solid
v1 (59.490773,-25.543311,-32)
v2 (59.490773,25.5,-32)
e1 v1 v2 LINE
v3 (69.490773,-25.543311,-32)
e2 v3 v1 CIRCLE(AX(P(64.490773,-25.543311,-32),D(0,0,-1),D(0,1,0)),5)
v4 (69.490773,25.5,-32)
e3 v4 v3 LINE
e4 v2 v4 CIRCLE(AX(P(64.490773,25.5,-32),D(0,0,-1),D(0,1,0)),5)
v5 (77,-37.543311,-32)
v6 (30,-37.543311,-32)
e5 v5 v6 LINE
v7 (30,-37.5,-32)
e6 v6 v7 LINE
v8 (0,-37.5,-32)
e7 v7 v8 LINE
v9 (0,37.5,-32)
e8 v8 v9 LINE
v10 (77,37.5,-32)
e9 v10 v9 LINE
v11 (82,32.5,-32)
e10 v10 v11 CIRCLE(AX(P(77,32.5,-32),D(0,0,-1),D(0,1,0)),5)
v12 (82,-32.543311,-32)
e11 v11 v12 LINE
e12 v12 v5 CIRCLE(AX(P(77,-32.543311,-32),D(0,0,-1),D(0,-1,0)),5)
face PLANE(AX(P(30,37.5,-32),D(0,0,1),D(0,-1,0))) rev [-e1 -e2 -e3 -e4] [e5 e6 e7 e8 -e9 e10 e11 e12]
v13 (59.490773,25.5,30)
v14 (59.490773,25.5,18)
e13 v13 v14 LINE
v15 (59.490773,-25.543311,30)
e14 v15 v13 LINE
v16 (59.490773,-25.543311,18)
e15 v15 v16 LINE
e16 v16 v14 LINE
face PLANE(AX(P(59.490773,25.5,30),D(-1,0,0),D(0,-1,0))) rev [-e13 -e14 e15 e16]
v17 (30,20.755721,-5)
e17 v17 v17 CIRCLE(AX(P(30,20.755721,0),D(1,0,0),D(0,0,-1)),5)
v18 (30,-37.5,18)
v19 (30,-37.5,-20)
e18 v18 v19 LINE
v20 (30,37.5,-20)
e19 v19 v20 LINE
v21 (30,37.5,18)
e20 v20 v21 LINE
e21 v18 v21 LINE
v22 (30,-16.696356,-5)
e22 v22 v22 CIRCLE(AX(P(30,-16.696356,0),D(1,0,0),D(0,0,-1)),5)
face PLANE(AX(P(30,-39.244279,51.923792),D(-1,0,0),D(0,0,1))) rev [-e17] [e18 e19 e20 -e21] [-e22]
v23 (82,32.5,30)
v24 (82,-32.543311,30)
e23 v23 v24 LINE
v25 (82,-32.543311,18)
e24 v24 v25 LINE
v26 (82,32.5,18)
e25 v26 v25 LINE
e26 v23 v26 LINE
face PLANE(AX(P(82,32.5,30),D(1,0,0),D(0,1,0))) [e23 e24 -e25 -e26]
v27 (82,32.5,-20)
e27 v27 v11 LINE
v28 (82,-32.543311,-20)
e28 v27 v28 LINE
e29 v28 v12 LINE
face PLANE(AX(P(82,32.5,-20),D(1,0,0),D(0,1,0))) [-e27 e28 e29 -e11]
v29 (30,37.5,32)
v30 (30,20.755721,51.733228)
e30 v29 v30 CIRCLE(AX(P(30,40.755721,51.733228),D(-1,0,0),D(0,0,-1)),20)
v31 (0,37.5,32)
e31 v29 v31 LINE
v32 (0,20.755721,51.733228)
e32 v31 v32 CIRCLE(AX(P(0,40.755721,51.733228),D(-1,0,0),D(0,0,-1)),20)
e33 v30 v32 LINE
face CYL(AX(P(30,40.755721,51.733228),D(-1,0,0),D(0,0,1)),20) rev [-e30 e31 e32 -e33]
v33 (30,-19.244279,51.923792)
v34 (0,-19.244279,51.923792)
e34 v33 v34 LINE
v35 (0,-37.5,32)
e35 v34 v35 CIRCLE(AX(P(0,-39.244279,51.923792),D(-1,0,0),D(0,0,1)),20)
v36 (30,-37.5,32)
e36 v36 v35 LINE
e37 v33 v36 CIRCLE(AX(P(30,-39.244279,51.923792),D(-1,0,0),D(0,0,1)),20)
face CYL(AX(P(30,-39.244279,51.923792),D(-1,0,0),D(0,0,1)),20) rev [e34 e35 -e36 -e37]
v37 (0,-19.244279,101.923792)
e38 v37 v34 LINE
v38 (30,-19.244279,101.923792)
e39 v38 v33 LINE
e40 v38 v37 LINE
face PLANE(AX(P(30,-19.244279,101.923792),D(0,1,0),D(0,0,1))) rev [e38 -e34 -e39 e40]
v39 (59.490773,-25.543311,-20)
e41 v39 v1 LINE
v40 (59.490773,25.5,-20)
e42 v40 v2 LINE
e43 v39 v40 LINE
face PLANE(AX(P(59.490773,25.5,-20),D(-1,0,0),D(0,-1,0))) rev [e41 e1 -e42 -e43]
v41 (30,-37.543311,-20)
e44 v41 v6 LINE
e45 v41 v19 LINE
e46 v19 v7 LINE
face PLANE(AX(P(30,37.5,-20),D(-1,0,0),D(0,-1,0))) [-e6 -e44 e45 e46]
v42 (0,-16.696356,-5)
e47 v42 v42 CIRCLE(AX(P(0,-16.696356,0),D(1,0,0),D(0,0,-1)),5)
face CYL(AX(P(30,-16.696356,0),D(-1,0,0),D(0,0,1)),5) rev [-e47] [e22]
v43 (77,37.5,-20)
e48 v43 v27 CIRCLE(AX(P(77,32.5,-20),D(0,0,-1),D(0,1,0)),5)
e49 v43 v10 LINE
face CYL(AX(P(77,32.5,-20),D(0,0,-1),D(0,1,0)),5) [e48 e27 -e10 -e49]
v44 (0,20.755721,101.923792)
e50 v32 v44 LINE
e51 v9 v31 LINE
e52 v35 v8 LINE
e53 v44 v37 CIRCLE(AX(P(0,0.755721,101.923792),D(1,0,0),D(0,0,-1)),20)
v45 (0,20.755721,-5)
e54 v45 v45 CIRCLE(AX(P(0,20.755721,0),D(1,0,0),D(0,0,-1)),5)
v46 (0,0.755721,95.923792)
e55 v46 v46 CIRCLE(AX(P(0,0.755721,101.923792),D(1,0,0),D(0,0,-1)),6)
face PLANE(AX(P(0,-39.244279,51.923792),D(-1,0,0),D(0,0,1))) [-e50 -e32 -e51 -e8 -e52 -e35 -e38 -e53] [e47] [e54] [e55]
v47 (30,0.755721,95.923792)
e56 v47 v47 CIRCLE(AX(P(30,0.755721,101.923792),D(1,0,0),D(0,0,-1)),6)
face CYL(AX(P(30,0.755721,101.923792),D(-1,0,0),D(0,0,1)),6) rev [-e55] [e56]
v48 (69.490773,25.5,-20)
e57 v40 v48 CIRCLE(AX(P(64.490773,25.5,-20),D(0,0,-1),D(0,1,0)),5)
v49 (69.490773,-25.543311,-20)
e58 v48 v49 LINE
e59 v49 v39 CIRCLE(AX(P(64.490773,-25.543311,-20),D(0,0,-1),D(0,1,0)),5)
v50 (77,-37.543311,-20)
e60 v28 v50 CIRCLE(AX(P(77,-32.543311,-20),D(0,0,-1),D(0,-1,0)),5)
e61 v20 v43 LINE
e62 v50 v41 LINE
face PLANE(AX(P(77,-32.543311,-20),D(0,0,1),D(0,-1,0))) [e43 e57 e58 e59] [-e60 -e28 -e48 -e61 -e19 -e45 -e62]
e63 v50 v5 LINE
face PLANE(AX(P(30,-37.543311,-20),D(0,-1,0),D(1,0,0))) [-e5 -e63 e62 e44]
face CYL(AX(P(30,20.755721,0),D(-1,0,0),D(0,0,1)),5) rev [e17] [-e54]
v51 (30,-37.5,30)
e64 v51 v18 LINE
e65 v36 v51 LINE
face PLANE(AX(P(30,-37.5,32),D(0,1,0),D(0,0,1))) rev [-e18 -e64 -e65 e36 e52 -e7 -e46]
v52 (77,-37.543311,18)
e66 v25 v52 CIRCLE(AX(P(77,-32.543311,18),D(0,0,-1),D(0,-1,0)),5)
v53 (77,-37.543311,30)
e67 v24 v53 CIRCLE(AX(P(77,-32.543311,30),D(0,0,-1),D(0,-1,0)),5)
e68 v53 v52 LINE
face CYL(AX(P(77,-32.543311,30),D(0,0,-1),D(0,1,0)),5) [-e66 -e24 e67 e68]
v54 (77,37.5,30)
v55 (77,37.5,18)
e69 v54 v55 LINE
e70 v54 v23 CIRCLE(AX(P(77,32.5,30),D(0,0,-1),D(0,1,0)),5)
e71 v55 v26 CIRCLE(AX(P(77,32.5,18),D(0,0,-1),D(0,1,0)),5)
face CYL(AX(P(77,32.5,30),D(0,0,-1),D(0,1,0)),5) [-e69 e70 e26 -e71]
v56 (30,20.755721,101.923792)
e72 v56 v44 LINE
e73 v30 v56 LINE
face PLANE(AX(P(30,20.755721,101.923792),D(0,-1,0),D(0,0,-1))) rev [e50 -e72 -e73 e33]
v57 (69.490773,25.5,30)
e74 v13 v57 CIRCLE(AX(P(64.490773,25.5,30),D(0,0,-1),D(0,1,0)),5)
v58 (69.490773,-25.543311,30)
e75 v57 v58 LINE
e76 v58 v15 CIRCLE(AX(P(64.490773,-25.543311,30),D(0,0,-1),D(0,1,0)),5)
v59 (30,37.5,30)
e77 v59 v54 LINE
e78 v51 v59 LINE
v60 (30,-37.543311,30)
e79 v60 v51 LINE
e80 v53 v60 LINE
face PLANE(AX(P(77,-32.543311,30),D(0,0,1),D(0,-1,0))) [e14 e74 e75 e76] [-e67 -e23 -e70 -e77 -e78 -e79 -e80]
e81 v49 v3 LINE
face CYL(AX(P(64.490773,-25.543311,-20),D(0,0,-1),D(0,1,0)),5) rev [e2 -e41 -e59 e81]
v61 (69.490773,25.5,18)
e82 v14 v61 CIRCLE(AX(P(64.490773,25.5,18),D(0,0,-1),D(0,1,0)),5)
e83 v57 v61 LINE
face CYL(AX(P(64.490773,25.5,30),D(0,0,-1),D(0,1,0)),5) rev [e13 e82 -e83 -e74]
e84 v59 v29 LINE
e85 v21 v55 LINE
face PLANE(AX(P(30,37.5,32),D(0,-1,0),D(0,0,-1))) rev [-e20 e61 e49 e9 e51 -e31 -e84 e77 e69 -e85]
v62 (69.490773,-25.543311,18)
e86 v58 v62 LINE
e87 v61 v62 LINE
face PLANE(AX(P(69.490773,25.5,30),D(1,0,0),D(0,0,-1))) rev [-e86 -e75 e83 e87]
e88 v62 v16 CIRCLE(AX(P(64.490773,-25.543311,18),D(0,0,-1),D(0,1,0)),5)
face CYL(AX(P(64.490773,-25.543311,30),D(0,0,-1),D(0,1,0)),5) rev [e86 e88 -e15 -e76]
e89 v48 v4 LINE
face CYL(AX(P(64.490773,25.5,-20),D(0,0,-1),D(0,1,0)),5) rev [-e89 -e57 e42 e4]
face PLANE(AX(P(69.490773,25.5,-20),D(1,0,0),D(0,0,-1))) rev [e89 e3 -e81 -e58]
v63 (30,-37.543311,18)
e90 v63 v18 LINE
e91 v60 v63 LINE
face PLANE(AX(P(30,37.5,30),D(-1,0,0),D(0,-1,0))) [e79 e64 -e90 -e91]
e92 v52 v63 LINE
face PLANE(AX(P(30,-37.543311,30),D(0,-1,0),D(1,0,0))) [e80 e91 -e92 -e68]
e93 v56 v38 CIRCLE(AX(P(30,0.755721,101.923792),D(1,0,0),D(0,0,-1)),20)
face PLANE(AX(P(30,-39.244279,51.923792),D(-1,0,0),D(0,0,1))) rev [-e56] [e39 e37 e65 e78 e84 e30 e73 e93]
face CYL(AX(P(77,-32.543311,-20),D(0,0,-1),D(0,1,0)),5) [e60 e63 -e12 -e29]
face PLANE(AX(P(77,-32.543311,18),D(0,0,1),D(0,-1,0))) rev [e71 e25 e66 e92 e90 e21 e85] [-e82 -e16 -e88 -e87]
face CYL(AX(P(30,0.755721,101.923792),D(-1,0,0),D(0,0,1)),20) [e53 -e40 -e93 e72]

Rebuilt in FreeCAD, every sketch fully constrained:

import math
import FreeCAD as App
import Part
import Sketcher

V = App.Vector
Q = App.Units.Quantity

doc = App.newDocument("Part")
body = doc.addObject("PartDesign::Body", "Body")

# Sketch on YZ plane
sketch1 = doc.addObject("Sketcher::SketchObject", "Sketch")
body.addObject(sketch1)
sketch1.AttachmentSupport = (doc.YZ_Plane, [""])
sketch1.MapMode = "FlatFace"
sketch1.addGeometry([
    Part.LineSegment(V(20.755721, 51.733228, 0), V(20.755721, 101.923792, 0)),  # 0
    Part.ArcOfCircle(Part.Circle(V(0.755721, 101.923792, 0), V(0, 0, 1), 20), math.radians(0), math.radians(180)),  # 1
    Part.LineSegment(V(-19.244279, 101.923792, 0), V(-19.244279, 51.923792, 0)),  # 2
    Part.ArcOfCircle(Part.Circle(V(-39.244279, 51.923792, 0), V(0, 0, 1), 20), math.radians(-84.996653), math.radians(0)),  # 3
    Part.LineSegment(V(-37.5, 32, 0), V(-37.5, -32, 0)),  # 4
    Part.LineSegment(V(-37.5, -32, 0), V(37.5, -32, 0)),  # 5
    Part.LineSegment(V(37.5, -32, 0), V(37.5, 32, 0)),  # 6
    Part.ArcOfCircle(Part.Circle(V(40.755721, 51.733228, 0), V(0, 0, 1), 20), math.radians(180), math.radians(260.631354)),  # 7
    Part.Circle(V(-16.696356, 0, 0), V(0, 0, 1), 5),  # 8
    Part.Circle(V(0.755721, 101.923792, 0), V(0, 0, 1), 6),  # 9
    Part.Circle(V(20.755721, 0, 0), V(0, 0, 1), 5),  # 10
], False)
sketch1.addConstraint([
    Sketcher.Constraint("Tangent", 0, 2, 1, 1),
    Sketcher.Constraint("Tangent", 1, 2, 2, 1),
    Sketcher.Constraint("Tangent", 2, 2, 3, 2),
    Sketcher.Constraint("Coincident", 3, 1, 4, 1),
    Sketcher.Constraint("Coincident", 4, 2, 5, 1),
    Sketcher.Constraint("Coincident", 5, 2, 6, 1),
    Sketcher.Constraint("Coincident", 6, 2, 7, 2),
    Sketcher.Constraint("Tangent", 7, 1, 0, 1),
    Sketcher.Constraint("Vertical", 0),
    Sketcher.Constraint("Vertical", 2),
    Sketcher.Constraint("Vertical", 4),
    Sketcher.Constraint("Horizontal", 5),
    Sketcher.Constraint("Vertical", 6),
    Sketcher.Constraint("Coincident", 9, 3, 1, 3),
    Sketcher.Constraint("Equal", 1, 3),
    Sketcher.Constraint("Equal", 3, 7),
    Sketcher.Constraint("Equal", 8, 10),
    Sketcher.Constraint("Symmetric", 3, 1, 5, 2, -1, 1),
    Sketcher.Constraint("PointOnObject", 8, 3, -1),
    Sketcher.Constraint("PointOnObject", 10, 3, -1),
    Sketcher.Constraint("Horizontal", 3, 1, 6, 2),
    Sketcher.Constraint("Vertical", 10, 3, 0, 2),
    Sketcher.Constraint("Diameter", 8, Q("10 mm")),
    Sketcher.Constraint("Diameter", 9, Q("12 mm")),
    Sketcher.Constraint("Radius", 1, Q("20 mm")),
    Sketcher.Constraint("DistanceX", 5, 1, 5, 2, Q("75 mm")),
    Sketcher.Constraint("DistanceY", 2, 2, 2, 1, Q("50 mm")),
    Sketcher.Constraint("DistanceY", 4, 2, 4, 1, Q("64 mm")),
    Sketcher.Constraint("DistanceY", 0, 1, 0, 2, Q("50.190564 mm")),
    Sketcher.Constraint("DistanceX", 8, 3, -1, 1, Q("16.696356 mm")),
])
pad1 = doc.addObject("PartDesign::Pad", "Pad")
body.addObject(pad1)
pad1.Profile = sketch1
pad1.Length = 30

# Sketch on XY plane
sketch2 = doc.addObject("Sketcher::SketchObject", "Sketch001")
body.addObject(sketch2)
sketch2.AttachmentSupport = (doc.XY_Plane, [""])
sketch2.MapMode = "FlatFace"
sketch2.AttachmentOffset = App.Placement(V(0, 0, -32), App.Rotation())
sketch2.addGeometry([
    Part.LineSegment(V(30, 37.5, 0), V(77, 37.5, 0)),  # 0
    Part.ArcOfCircle(Part.Circle(V(77, 32.5, 0), V(0, 0, 1), 5), math.radians(0), math.radians(90)),  # 1
    Part.LineSegment(V(82, 32.5, 0), V(82, -32.543311, 0)),  # 2
    Part.ArcOfCircle(Part.Circle(V(77, -32.543311, 0), V(0, 0, 1), 5), math.radians(-90), math.radians(0)),  # 3
    Part.LineSegment(V(77, -37.543311, 0), V(30, -37.543311, 0)),  # 4
    Part.LineSegment(V(30, -37.543311, 0), V(30, 37.5, 0)),  # 5
    Part.ArcOfCircle(Part.Circle(V(64.490773, 25.5, 0), V(0, 0, 1), 5), math.radians(0), math.radians(180)),  # 6
    Part.LineSegment(V(59.490773, 25.5, 0), V(59.490773, -25.543311, 0)),  # 7
    Part.ArcOfCircle(Part.Circle(V(64.490773, -25.543311, 0), V(0, 0, 1), 5), math.radians(180), math.radians(360)),  # 8
    Part.LineSegment(V(69.490773, -25.543311, 0), V(69.490773, 25.5, 0)),  # 9
], False)
sketch2.addConstraint([
    Sketcher.Constraint("Tangent", 0, 2, 1, 2),
    Sketcher.Constraint("Tangent", 1, 1, 2, 1),
    Sketcher.Constraint("Tangent", 2, 2, 3, 2),
    Sketcher.Constraint("Tangent", 3, 1, 4, 1),
    Sketcher.Constraint("Coincident", 4, 2, 5, 1),
    Sketcher.Constraint("Coincident", 5, 2, 0, 1),
    Sketcher.Constraint("Tangent", 6, 2, 7, 1),
    Sketcher.Constraint("Tangent", 7, 2, 8, 1),
    Sketcher.Constraint("Tangent", 8, 2, 9, 1),
    Sketcher.Constraint("Tangent", 9, 2, 6, 1),
    Sketcher.Constraint("Horizontal", 0),
    Sketcher.Constraint("Vertical", 2),
    Sketcher.Constraint("Horizontal", 4),
    Sketcher.Constraint("Vertical", 5),
    Sketcher.Constraint("Vertical", 7),
    Sketcher.Constraint("Vertical", 9),
    Sketcher.Constraint("Equal", 1, 3),
    Sketcher.Constraint("Equal", 3, 6),
    Sketcher.Constraint("Radius", 1, Q("5 mm")),
    Sketcher.Constraint("DistanceX", 0, 1, 0, 2, Q("47 mm")),
    Sketcher.Constraint("DistanceX", -1, 1, 1, 3, Q("77 mm")),
    Sketcher.Constraint("DistanceY", 6, 3, 1, 3, Q("7 mm")),
    Sketcher.Constraint("DistanceY", 3, 3, 8, 3, Q("7 mm")),
    Sketcher.Constraint("DistanceY", -1, 1, 1, 3, Q("32.5 mm")),
    Sketcher.Constraint("DistanceY", 2, 2, 2, 1, Q("65.043311 mm")),
    Sketcher.Constraint("DistanceX", -1, 1, 6, 3, Q("64.490773 mm")),
])
pad2 = doc.addObject("PartDesign::Pad", "Pad001")
body.addObject(pad2)
pad2.Profile = sketch2
pad2.Length = 12
doc.recompute()

linearpattern = doc.addObject("PartDesign::LinearPattern", "LinearPattern")
body.addObject(linearpattern)
linearpattern.Originals = [pad2]
linearpattern.Direction = (doc.Z_Axis, [""])
linearpattern.Mode = "offset"
linearpattern.Offset = 50
linearpattern.Occurrences = 2
body.Tip = linearpattern

doc.recompute()
